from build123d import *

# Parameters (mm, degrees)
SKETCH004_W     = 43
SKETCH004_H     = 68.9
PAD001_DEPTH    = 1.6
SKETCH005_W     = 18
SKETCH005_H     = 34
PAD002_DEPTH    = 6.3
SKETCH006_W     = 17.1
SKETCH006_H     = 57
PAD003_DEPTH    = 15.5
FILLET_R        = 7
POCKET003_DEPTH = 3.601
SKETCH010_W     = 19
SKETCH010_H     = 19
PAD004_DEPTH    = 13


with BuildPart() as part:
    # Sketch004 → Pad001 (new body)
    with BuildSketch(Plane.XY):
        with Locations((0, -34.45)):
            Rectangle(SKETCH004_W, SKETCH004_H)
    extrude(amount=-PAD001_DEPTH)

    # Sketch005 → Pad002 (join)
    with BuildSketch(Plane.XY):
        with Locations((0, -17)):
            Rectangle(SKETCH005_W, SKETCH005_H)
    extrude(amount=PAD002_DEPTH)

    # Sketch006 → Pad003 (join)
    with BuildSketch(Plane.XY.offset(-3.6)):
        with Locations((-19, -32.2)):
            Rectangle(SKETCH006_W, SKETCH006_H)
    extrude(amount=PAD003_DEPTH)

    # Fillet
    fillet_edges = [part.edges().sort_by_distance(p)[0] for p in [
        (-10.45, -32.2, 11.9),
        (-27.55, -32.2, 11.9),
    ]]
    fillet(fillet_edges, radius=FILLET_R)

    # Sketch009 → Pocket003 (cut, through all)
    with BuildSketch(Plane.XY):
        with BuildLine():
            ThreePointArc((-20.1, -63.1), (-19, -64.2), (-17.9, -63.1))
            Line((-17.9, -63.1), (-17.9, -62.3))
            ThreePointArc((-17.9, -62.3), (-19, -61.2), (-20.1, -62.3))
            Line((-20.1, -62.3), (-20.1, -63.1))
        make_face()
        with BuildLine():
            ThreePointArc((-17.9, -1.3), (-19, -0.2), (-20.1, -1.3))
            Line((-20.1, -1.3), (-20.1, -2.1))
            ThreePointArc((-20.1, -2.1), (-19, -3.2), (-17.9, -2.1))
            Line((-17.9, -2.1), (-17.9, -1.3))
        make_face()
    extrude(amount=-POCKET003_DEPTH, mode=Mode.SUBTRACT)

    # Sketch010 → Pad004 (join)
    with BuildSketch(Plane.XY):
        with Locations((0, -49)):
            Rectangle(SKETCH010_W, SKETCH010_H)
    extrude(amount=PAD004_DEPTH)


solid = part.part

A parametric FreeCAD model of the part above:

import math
import FreeCAD as App
import Part
import Sketcher

V = App.Vector


def edges_at(feature, points):
    """Names of the edges that pass closest to the given points."""
    edges = feature.Shape.Edges
    near = lambda p: min(range(len(edges)), key=lambda i: edges[i].distToShape(Part.Vertex(*p))[0])
    return sorted({f"Edge{near(p) + 1}" for p in points})

doc = App.newDocument("Part")
body = doc.addObject("PartDesign::Body", "Body")

# Sketch on XY plane
sketch1 = body.newObject("Sketcher::SketchObject", "Sketch")
sketch1.AttachmentSupport = (doc.getObject("XY_Plane"), [""])
sketch1.MapMode = "FlatFace"
sketch1.addGeometry(Part.LineSegment(V(-22, 0, 0), V(-22, -69, 0)), False)
sketch1.addGeometry(Part.LineSegment(V(-22, -69, 0), V(22, -69, 0)), False)
sketch1.addGeometry(Part.LineSegment(V(22, -69, 0), V(22, 0, 0)), False)
sketch1.addGeometry(Part.LineSegment(V(22, 0, 0), V(-22, 0, 0)), False)
sketch1.addConstraint(Sketcher.Constraint("Coincident", 0, 2, 1, 1))
sketch1.addConstraint(Sketcher.Constraint("Coincident", 1, 2, 2, 1))
sketch1.addConstraint(Sketcher.Constraint("Coincident", 2, 2, 3, 1))
sketch1.addConstraint(Sketcher.Constraint("Coincident", 3, 2, 0, 1))
sketch1.addConstraint(Sketcher.Constraint("Vertical", 0))
sketch1.addConstraint(Sketcher.Constraint("Horizontal", 1))
sketch1.addConstraint(Sketcher.Constraint("Vertical", 2))
sketch1.addConstraint(Sketcher.Constraint("Horizontal", 3))
sketch1.addConstraint(Sketcher.Constraint("Symmetric", 2, 2, 3, 2, -1, 1))
sketch1.addConstraint(Sketcher.Constraint("DistanceX", 1, 1, 1, 2, 43.0))
sketch1.addConstraint(Sketcher.Constraint("DistanceY", 0, 2, 0, 1, 68.9))
pad1 = body.newObject("PartDesign::Pad", "Pad")
pad1.Profile = sketch1
pad1.Length = 1.6
pad1.Reversed = True

# Sketch on XY plane
sketch2 = body.newObject("Sketcher::SketchObject", "Sketch001")
sketch2.AttachmentSupport = (doc.getObject("XY_Plane"), [""])
sketch2.MapMode = "FlatFace"
sketch2.addGeometry(Part.LineSegment(V(-9, 0, 0), V(-9, -34, 0)), False)
sketch2.addGeometry(Part.LineSegment(V(-9, -34, 0), V(9, -34, 0)), False)
sketch2.addGeometry(Part.LineSegment(V(9, -34, 0), V(9, 0, 0)), False)
sketch2.addGeometry(Part.LineSegment(V(9, 0, 0), V(-9, 0, 0)), False)
sketch2.addConstraint(Sketcher.Constraint("Coincident", 0, 2, 1, 1))
sketch2.addConstraint(Sketcher.Constraint("Coincident", 1, 2, 2, 1))
sketch2.addConstraint(Sketcher.Constraint("Coincident", 2, 2, 3, 1))
sketch2.addConstraint(Sketcher.Constraint("Coincident", 3, 2, 0, 1))
sketch2.addConstraint(Sketcher.Constraint("Vertical", 0))
sketch2.addConstraint(Sketcher.Constraint("Horizontal", 1))
sketch2.addConstraint(Sketcher.Constraint("Vertical", 2))
sketch2.addConstraint(Sketcher.Constraint("Horizontal", 3))
sketch2.addConstraint(Sketcher.Constraint("Symmetric", 2, 2, 3, 2, -1, 1))
sketch2.addConstraint(Sketcher.Constraint("DistanceX", 1, 1, 1, 2, 18.0))
sketch2.addConstraint(Sketcher.Constraint("DistanceY", 0, 2, 0, 1, 34.0))
pad2 = body.newObject("PartDesign::Pad", "Pad001")
pad2.Profile = sketch2
pad2.Length = 6.3

# Sketch on XY plane
sketch3 = body.newObject("Sketcher::SketchObject", "Sketch002")
sketch3.AttachmentSupport = (doc.getObject("XY_Plane"), [""])
sketch3.MapMode = "FlatFace"
sketch3.AttachmentOffset = App.Placement(V(0, 0, -3.6), App.Rotation())
sketch3.addGeometry(Part.LineSegment(V(-28, -4, 0), V(-28, -61, 0)), False)
sketch3.addGeometry(Part.LineSegment(V(-28, -61, 0), V(-10, -61, 0)), False)
sketch3.addGeometry(Part.LineSegment(V(-10, -61, 0), V(-10, -4, 0)), False)
sketch3.addGeometry(Part.LineSegment(V(-10, -4, 0), V(-28, -4, 0)), False)
sketch3.addConstraint(Sketcher.Constraint("Coincident", 0, 2, 1, 1))
sketch3.addConstraint(Sketcher.Constraint("Coincident", 1, 2, 2, 1))
sketch3.addConstraint(Sketcher.Constraint("Coincident", 2, 2, 3, 1))
sketch3.addConstraint(Sketcher.Constraint("Coincident", 3, 2, 0, 1))
sketch3.addConstraint(Sketcher.Constraint("Vertical", 0))
sketch3.addConstraint(Sketcher.Constraint("Horizontal", 1))
sketch3.addConstraint(Sketcher.Constraint("Vertical", 2))
sketch3.addConstraint(Sketcher.Constraint("Horizontal", 3))
sketch3.addConstraint(Sketcher.Constraint("DistanceY", 0, 2, 0, 1, 57.0))
sketch3.addConstraint(Sketcher.Constraint("DistanceX", 1, 1, 1, 2, 17.1))
sketch3.addConstraint(Sketcher.Constraint("DistanceY", 0, 2, -1, 1, 60.7))
sketch3.addConstraint(Sketcher.Constraint("DistanceX", 0, 2, -1, 1, 27.55))
pad3 = body.newObject("PartDesign::Pad", "Pad002")
pad3.Profile = sketch3
pad3.Length = 15.5
doc.recompute()

fillet = body.newObject("PartDesign::Fillet", "Fillet")
fillet.Base = (pad3, edges_at(pad3, [(-10.45, -32.2, 11.9), (-27.55, -32.2, 11.9)]))
fillet.Radius = 7

# Sketch on XY plane
sketch4 = body.newObject("Sketcher::SketchObject", "Sketch003")
sketch4.AttachmentSupport = (doc.getObject("XY_Plane"), [""])
sketch4.MapMode = "FlatFace"
sketch4.addGeometry(Part.ArcOfCircle(Part.Circle(V(-19, -63.1, 0), V(0, 0, 1), 1.1), math.radians(180), math.radians(360)), False)
sketch4.addGeometry(Part.LineSegment(V(-17.9, -63.1, 0), V(-17.9, -62.3, 0)), False)
sketch4.addGeometry(Part.ArcOfCircle(Part.Circle(V(-19, -62.3, 0), V(0, 0, 1), 1.1), math.radians(0), math.radians(180)), False)
sketch4.addGeometry(Part.LineSegment(V(-20.1, -62.3, 0), V(-20.1, -63.1, 0)), False)
sketch4.addGeometry(Part.ArcOfCircle(Part.Circle(V(-19, -1.3, 0), V(0, 0, 1), 1.1), math.radians(0), math.radians(180)), False)
sketch4.addGeometry(Part.LineSegment(V(-20.1, -1.3, 0), V(-20.1, -2.1, 0)), False)
sketch4.addGeometry(Part.ArcOfCircle(Part.Circle(V(-19, -2.1, 0), V(0, 0, 1), 1.1), math.radians(180), math.radians(360)), False)
sketch4.addGeometry(Part.LineSegment(V(-17.9, -2.1, 0), V(-17.9, -1.3, 0)), False)
sketch4.addConstraint(Sketcher.Constraint("Tangent", 0, 2, 1, 1))
sketch4.addConstraint(Sketcher.Constraint("Tangent", 1, 2, 2, 1))
sketch4.addConstraint(Sketcher.Constraint("Tangent", 2, 2, 3, 1))
sketch4.addConstraint(Sketcher.Constraint("Tangent", 3, 2, 0, 1))
sketch4.addConstraint(Sketcher.Constraint("Tangent", 4, 2, 5, 1))
sketch4.addConstraint(Sketcher.Constraint("Tangent", 5, 2, 6, 1))
sketch4.addConstraint(Sketcher.Constraint("Tangent", 6, 2, 7, 1))
sketch4.addConstraint(Sketcher.Constraint("Tangent", 7, 2, 4, 1))
sketch4.addConstraint(Sketcher.Constraint("Vertical", 1))
sketch4.addConstraint(Sketcher.Constraint("Vertical", 3))
sketch4.addConstraint(Sketcher.Constraint("Vertical", 5))
sketch4.addConstraint(Sketcher.Constraint("Vertical", 7))
sketch4.addConstraint(Sketcher.Constraint("Equal", 2, 4))
sketch4.addConstraint(Sketcher.Constraint("Vertical", 2, 3, 4, 3))
sketch4.addConstraint(Sketcher.Constraint("Equal", 3, 5))
sketch4.addConstraint(Sketcher.Constraint("Radius", 0, 1.1))
sketch4.addConstraint(Sketcher.Constraint("DistanceY", 1, 1, 1, 2, 0.8))
sketch4.addConstraint(Sketcher.Constraint("DistanceX", 0, 3, -1, 1, 19.0))
sketch4.addConstraint(Sketcher.Constraint("DistanceY", 2, 3, 4, 3, 61.0))
sketch4.addConstraint(Sketcher.Constraint("DistanceY", 0, 3, -1, 1, 63.1))
pocket1 = body.newObject("PartDesign::Pocket", "Pocket")
pocket1.Profile = sketch4
pocket1.Type = "ThroughAll"

# Sketch on XY plane
sketch5 = body.newObject("Sketcher::SketchObject", "Sketch004")
sketch5.AttachmentSupport = (doc.getObject("XY_Plane"), [""])
sketch5.MapMode = "FlatFace"
sketch5.addGeometry(Part.LineSegment(V(-10, -40, 0), V(-10, -58, 0)), False)
sketch5.addGeometry(Part.LineSegment(V(-10, -58, 0), V(10, -58, 0)), False)
sketch5.addGeometry(Part.LineSegment(V(10, -58, 0), V(10, -40, 0)), False)
sketch5.addGeometry(Part.LineSegment(V(10, -40, 0), V(-10, -40, 0)), False)
sketch5.addConstraint(Sketcher.Constraint("Coincident", 0, 2, 1, 1))
sketch5.addConstraint(Sketcher.Constraint("Coincident", 1, 2, 2, 1))
sketch5.addConstraint(Sketcher.Constraint("Coincident", 2, 2, 3, 1))
sketch5.addConstraint(Sketcher.Constraint("Coincident", 3, 2, 0, 1))
sketch5.addConstraint(Sketcher.Constraint("Vertical", 0))
sketch5.addConstraint(Sketcher.Constraint("Horizontal", 1))
sketch5.addConstraint(Sketcher.Constraint("Vertical", 2))
sketch5.addConstraint(Sketcher.Constraint("Horizontal", 3))
sketch5.addConstraint(Sketcher.Constraint("Equal", 3, 0))
sketch5.addConstraint(Sketcher.Constraint("DistanceX", 1, 1, 1, 2, 19.0))
sketch5.addConstraint(Sketcher.Constraint("DistanceX", 0, 2, -1, 1, 9.5))
sketch5.addConstraint(Sketcher.Constraint("DistanceY", 0, 2, -1, 1, 58.5))
pad4 = body.newObject("PartDesign::Pad", "Pad003")
pad4.Profile = sketch5
pad4.Length = 13

doc.recompute()
